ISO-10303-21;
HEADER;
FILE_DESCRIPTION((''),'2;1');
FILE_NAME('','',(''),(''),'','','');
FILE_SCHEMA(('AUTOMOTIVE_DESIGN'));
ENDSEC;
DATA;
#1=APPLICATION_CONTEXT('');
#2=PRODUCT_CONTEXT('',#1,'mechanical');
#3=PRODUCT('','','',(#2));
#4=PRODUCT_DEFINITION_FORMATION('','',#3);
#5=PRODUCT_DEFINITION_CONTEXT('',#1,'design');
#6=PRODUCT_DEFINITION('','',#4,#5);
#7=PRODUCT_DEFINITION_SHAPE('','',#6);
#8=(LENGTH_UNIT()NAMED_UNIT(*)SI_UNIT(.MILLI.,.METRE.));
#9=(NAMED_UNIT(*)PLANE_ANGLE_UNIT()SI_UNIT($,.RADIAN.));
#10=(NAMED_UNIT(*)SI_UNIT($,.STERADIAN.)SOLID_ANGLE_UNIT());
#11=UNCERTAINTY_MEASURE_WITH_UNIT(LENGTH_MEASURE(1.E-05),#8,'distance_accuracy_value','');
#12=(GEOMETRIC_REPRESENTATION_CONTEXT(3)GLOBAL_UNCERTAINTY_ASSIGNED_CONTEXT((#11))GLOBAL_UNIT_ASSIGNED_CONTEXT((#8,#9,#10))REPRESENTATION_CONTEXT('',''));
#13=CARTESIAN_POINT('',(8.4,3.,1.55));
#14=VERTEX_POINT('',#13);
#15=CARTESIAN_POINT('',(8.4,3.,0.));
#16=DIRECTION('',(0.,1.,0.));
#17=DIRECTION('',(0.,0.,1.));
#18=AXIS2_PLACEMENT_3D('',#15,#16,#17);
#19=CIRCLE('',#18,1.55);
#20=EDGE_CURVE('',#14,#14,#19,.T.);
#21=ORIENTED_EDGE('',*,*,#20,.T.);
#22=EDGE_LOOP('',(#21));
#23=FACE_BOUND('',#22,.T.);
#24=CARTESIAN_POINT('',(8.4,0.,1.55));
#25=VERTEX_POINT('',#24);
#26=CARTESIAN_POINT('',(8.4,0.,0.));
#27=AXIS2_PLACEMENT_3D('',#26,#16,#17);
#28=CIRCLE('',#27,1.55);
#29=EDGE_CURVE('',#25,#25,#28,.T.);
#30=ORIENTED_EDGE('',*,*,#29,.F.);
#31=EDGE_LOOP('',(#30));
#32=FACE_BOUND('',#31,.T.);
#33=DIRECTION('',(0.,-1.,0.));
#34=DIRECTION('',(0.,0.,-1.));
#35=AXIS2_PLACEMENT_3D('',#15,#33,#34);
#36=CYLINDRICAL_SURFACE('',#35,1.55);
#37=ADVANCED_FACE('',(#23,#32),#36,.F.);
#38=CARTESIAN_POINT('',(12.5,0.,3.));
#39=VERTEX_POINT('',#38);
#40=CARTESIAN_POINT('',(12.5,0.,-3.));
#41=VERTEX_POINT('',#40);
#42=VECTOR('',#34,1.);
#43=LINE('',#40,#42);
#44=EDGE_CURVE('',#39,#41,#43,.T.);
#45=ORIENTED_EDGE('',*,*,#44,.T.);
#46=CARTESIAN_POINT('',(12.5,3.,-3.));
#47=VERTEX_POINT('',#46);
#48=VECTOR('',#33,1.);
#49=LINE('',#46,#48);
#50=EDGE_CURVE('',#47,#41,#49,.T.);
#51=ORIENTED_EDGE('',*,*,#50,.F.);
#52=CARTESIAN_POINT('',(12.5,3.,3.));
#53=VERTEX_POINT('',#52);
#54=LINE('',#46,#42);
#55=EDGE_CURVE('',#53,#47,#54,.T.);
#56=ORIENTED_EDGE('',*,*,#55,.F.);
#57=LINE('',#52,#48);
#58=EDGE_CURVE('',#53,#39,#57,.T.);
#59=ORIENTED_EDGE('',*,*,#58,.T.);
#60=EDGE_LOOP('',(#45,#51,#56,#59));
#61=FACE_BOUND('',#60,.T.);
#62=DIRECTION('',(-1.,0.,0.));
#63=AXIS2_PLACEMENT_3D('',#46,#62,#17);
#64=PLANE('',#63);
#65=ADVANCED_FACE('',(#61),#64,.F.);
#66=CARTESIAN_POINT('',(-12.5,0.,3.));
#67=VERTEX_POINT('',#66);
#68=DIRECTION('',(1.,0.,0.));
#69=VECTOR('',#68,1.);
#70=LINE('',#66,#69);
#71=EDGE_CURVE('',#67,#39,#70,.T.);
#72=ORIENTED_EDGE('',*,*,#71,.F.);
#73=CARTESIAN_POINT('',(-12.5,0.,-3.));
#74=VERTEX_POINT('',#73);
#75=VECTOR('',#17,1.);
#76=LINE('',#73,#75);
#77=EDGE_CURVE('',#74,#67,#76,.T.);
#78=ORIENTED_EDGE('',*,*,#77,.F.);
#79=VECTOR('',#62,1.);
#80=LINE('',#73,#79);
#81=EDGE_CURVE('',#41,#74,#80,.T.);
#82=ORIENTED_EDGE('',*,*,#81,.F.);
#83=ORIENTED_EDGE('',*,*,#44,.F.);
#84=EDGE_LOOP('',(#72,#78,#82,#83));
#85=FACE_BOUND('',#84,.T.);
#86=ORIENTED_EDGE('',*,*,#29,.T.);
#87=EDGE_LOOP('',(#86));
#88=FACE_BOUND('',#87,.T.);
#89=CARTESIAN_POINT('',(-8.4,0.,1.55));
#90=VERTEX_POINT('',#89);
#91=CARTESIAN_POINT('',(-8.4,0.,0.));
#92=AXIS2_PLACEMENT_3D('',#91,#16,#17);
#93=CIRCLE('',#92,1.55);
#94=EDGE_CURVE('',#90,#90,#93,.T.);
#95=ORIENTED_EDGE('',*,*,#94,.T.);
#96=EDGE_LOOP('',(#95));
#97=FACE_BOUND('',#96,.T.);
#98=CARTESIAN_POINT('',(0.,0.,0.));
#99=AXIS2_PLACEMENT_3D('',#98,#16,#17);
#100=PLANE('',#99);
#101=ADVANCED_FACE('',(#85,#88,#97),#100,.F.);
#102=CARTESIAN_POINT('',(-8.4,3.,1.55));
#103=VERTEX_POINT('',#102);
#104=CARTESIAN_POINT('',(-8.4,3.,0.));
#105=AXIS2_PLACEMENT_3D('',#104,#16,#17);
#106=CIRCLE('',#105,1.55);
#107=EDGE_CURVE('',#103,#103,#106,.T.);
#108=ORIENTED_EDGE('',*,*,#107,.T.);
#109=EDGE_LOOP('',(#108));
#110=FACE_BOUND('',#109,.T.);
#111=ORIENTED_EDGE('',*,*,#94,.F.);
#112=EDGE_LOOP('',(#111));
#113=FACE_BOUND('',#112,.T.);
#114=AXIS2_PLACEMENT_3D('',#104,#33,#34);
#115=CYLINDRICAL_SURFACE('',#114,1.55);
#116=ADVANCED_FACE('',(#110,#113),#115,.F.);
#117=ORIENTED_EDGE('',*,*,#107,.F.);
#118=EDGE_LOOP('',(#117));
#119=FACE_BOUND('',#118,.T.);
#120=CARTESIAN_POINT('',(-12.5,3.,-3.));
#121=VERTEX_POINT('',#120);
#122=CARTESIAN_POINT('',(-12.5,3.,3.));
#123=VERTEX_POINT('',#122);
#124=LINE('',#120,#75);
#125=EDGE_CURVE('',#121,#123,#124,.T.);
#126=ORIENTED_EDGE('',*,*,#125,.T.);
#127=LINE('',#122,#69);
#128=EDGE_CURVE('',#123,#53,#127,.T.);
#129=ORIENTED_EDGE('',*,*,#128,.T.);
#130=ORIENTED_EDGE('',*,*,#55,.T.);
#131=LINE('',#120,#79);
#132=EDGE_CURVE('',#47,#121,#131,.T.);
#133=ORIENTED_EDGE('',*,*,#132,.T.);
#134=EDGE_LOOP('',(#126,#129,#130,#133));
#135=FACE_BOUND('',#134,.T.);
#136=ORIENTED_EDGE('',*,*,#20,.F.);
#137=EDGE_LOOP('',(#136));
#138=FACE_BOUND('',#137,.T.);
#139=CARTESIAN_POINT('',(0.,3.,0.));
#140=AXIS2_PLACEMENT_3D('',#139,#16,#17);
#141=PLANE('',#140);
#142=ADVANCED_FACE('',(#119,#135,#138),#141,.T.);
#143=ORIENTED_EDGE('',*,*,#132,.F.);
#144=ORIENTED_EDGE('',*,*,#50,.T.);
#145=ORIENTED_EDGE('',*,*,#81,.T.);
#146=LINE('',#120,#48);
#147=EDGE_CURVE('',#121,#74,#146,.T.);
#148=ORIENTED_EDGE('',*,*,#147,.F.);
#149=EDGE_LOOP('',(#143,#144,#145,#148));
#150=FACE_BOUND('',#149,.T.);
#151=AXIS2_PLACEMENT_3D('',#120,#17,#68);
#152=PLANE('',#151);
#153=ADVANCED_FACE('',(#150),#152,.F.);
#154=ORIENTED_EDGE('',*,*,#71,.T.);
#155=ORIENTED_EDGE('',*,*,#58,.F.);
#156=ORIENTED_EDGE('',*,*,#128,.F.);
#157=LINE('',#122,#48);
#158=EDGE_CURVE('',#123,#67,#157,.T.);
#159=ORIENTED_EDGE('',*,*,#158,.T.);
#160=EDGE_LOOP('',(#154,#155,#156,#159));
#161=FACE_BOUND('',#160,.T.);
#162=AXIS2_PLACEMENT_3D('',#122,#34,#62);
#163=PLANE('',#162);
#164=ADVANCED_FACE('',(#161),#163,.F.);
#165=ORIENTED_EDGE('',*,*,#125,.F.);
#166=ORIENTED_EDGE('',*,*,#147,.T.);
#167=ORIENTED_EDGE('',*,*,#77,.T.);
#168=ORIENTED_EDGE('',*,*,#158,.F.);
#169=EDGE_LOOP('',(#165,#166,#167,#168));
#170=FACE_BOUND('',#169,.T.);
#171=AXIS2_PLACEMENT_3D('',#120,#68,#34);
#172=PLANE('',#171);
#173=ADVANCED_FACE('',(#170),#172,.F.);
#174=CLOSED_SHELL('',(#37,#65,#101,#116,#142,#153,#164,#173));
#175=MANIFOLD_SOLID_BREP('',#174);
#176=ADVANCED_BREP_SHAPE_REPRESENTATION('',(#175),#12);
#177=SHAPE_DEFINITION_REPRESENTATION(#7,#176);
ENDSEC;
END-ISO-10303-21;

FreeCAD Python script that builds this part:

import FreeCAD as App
import Part
import Sketcher
from FreeCAD import Vector


def add_polygon(sketch, points):
    """Adds a closed chain of lines whose ends are joined by coincident constraints."""
    first, n = sketch.GeometryCount, len(points)
    for a, b in zip(points, points[1:] + points[:1]):
        sketch.addGeometry(Part.LineSegment(App.Vector(*a, 0), App.Vector(*b, 0)), False)
    for i in range(n):
        sketch.addConstraint(Sketcher.Constraint("Coincident", first + i, 2, first + (i + 1) % n, 1))

doc = App.newDocument("Part")
params = doc.addObject("Spreadsheet::Sheet", "Params")
for row, (alias, value) in enumerate([
    ("sketch1_diameter", "3.1 mm"),
    ("sketch1_width", "25 mm"),
    ("sketch1_height", "6 mm"),
    ("pad1_length", "3 mm"),
], start=1):
    params.set(f"A{row}", alias)
    params.set(f"B{row}", "=" + value)
    params.setAlias(f"B{row}", alias)

body = doc.addObject("PartDesign::Body", "Body")

# Sketch on XZ plane
sketch1 = body.newObject("Sketcher::SketchObject", "Sketch")
sketch1.AttachmentSupport = (doc.getObject("XZ_Plane"), [""])
sketch1.MapMode = "FlatFace"
add_polygon(sketch1, [(-12.5, -3), (-12.5, 3), (12.5, 3), (12.5, -3)])  # lines 0-3
sketch1.addGeometry(Part.Circle(Vector(-8.4, 0, 0), Vector(0, 0, 1), 1.6), False)  # 4
sketch1.addGeometry(Part.Circle(Vector(8.4, 0, 0), Vector(0, 0, 1), 1.6), False)  # 5
sketch1.addConstraint([
    Sketcher.Constraint("Vertical", 0),
    Sketcher.Constraint("Horizontal", 1),
    Sketcher.Constraint("Vertical", 2),
    Sketcher.Constraint("Horizontal", 3),
    Sketcher.Constraint("Equal", 4, 5),
    Sketcher.Constraint("Symmetric", 4, 3, 5, 3, -1, 1),
    Sketcher.Constraint("Symmetric", 0, 2, 2, 2, -1, 1),
    Sketcher.Constraint("PointOnObject", 4, 3, -1),
    Sketcher.Constraint("Diameter", 4, 3.1),
    Sketcher.Constraint("DistanceX", 1, 1, 1, 2, 25.0),
    Sketcher.Constraint("DistanceY", 0, 1, 0, 2, 6.0),
    Sketcher.Constraint("DistanceX", 4, 3, -1, 1, 8.4),
])
sketch1.setExpression("Constraints[12]", "Params.sketch1_diameter")
sketch1.setExpression("Constraints[13]", "Params.sketch1_width")
sketch1.setExpression("Constraints[14]", "Params.sketch1_height")
pad1 = body.newObject("PartDesign::Pad", "Pad")
pad1.Profile = sketch1
pad1.setExpression("Length", "Params.pad1_length")
pad1.Reversed = True

doc.recompute()
